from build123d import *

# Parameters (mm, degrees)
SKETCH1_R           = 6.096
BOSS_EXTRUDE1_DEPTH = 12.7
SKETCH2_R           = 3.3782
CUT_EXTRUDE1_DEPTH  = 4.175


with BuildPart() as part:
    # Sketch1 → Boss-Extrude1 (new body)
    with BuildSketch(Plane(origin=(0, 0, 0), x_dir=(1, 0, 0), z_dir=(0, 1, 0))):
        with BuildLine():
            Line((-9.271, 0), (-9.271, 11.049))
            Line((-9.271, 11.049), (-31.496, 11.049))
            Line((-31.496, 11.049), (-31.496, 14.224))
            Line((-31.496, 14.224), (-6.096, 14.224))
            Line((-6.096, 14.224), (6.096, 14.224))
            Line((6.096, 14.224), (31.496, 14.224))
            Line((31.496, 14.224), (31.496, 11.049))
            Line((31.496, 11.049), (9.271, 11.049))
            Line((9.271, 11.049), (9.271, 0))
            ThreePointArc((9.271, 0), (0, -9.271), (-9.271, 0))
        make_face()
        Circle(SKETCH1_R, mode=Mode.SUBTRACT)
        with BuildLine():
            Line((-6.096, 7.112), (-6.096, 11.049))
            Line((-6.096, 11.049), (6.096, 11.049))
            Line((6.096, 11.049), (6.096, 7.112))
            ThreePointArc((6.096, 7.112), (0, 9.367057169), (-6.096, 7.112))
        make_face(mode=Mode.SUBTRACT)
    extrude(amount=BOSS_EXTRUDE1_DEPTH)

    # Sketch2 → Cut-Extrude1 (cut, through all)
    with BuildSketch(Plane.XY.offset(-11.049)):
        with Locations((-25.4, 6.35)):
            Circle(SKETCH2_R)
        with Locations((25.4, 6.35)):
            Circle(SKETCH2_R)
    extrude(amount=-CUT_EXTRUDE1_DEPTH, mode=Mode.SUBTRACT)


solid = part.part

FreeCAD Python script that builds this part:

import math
import FreeCAD as App
import Part
import Sketcher

V = App.Vector
Q = App.Units.Quantity

doc = App.newDocument("Part")
body = doc.addObject("PartDesign::Body", "Body")

# Sketch on XZ plane
sketch1 = body.newObject("Sketcher::SketchObject", "Sketch")
sketch1.AttachmentSupport = (doc.getObject("XZ_Plane"), [""])
sketch1.MapMode = "FlatFace"
sketch1.addGeometry(Part.LineSegment(V(-9.3, -11, 0), V(-9.3, 0, 0)), False)
sketch1.addGeometry(Part.ArcOfCircle(Part.Circle(V(0, 0, 0), V(0, 0, 1), 9.3), math.radians(0), math.radians(180)), False)
sketch1.addGeometry(Part.LineSegment(V(9.3, 0, 0), V(9.3, -11, 0)), False)
sketch1.addGeometry(Part.LineSegment(V(9.3, -11, 0), V(31.5, -11, 0)), False)
sketch1.addGeometry(Part.LineSegment(V(31.5, -11, 0), V(31.5, -14.2, 0)), False)
sketch1.addGeometry(Part.LineSegment(V(31.5, -14.2, 0), V(-31.5, -14.2, 0)), False)
sketch1.addGeometry(Part.LineSegment(V(-31.5, -14.2, 0), V(-31.5, -11, 0)), False)
sketch1.addGeometry(Part.LineSegment(V(-31.5, -11, 0), V(-9.3, -11, 0)), False)
sketch1.addGeometry(Part.Circle(V(0, 0, 0), V(0, 0, 1), 6.1), False)
sketch1.addGeometry(Part.LineSegment(V(-6.1, -7.1, 0), V(-6.1, -11, 0)), False)
sketch1.addGeometry(Part.LineSegment(V(-6.1, -11, 0), V(6.1, -11, 0)), False)
sketch1.addGeometry(Part.LineSegment(V(6.1, -11, 0), V(6.1, -7.1, 0)), False)
sketch1.addGeometry(Part.ArcOfCircle(Part.Circle(V(0, 0, 0), V(0, 0, 1), 9.4), math.radians(-131), math.radians(-49)), False)
sketch1.addConstraint(Sketcher.Constraint("Tangent", 0, 2, 1, 2))
sketch1.addConstraint(Sketcher.Constraint("Tangent", 1, 1, 2, 1))
sketch1.addConstraint(Sketcher.Constraint("Coincident", 2, 2, 3, 1))
sketch1.addConstraint(Sketcher.Constraint("Coincident", 3, 2, 4, 1))
sketch1.addConstraint(Sketcher.Constraint("Coincident", 4, 2, 5, 1))
sketch1.addConstraint(Sketcher.Constraint("Coincident", 5, 2, 6, 1))
sketch1.addConstraint(Sketcher.Constraint("Coincident", 6, 2, 7, 1))
sketch1.addConstraint(Sketcher.Constraint("Coincident", 7, 2, 0, 1))
sketch1.addConstraint(Sketcher.Constraint("Coincident", 9, 2, 10, 1))
sketch1.addConstraint(Sketcher.Constraint("Coincident", 10, 2, 11, 1))
sketch1.addConstraint(Sketcher.Constraint("Coincident", 11, 2, 12, 2))
sketch1.addConstraint(Sketcher.Constraint("Coincident", 12, 1, 9, 1))
sketch1.addConstraint(Sketcher.Constraint("Vertical", 0))
sketch1.addConstraint(Sketcher.Constraint("Vertical", 2))
sketch1.addConstraint(Sketcher.Constraint("Horizontal", 3))
sketch1.addConstraint(Sketcher.Constraint("Vertical", 4))
sketch1.addConstraint(Sketcher.Constraint("Horizontal", 5))
sketch1.addConstraint(Sketcher.Constraint("Vertical", 6))
sketch1.addConstraint(Sketcher.Constraint("Horizontal", 7))
sketch1.addConstraint(Sketcher.Constraint("Vertical", 9))
sketch1.addConstraint(Sketcher.Constraint("Horizontal", 10))
sketch1.addConstraint(Sketcher.Constraint("Vertical", 11))
sketch1.addConstraint(Sketcher.Constraint("Coincident", 1, 3, -1, 1))
sketch1.addConstraint(Sketcher.Constraint("Coincident", 8, 3, -1, 1))
sketch1.addConstraint(Sketcher.Constraint("Coincident", 12, 3, -1, 1))
sketch1.addConstraint(Sketcher.Constraint("Symmetric", 3, 2, 6, 2, -2))
sketch1.addConstraint(Sketcher.Constraint("Horizontal", 7, 2, 9, 2))
sketch1.addConstraint(Sketcher.Constraint("Horizontal", 11, 2, 12, 1))
sketch1.addConstraint(Sketcher.Constraint("Diameter", 8, Q("0.48 in")))
sketch1.addConstraint(Sketcher.Constraint("Radius", 1, Q("0.365 in")))
sketch1.addConstraint(Sketcher.Constraint("DistanceX", 5, 2, 5, 1, Q("2.48 in")))
sketch1.addConstraint(Sketcher.Constraint("DistanceX", 10, 1, 10, 2, Q("0.48 in")))
sketch1.addConstraint(Sketcher.Constraint("DistanceY", 0, 1, 0, 2, Q("0.435 in")))
sketch1.addConstraint(Sketcher.Constraint("DistanceY", 4, 2, 4, 1, Q("0.125 in")))
sketch1.addConstraint(Sketcher.Constraint("DistanceY", 9, 2, 9, 1, Q("0.155 in")))
pad1 = body.newObject("PartDesign::Pad", "Pad")
pad1.Profile = sketch1
pad1.Length = Q("0.5 in")
pad1.Reversed = True

# Sketch on XY plane
sketch2 = body.newObject("Sketcher::SketchObject", "Sketch001")
sketch2.AttachmentSupport = (doc.getObject("XY_Plane"), [""])
sketch2.MapMode = "FlatFace"
sketch2.AttachmentOffset = App.Placement(V(0, 0, -0.435 * 25.4), App.Rotation())
sketch2.addGeometry(Part.Circle(V(-25.4, 6.3, 0), V(0, 0, 1), 3.4), False)
sketch2.addGeometry(Part.Circle(V(25.4, 6.3, 0), V(0, 0, 1), 3.4), False)
sketch2.addConstraint(Sketcher.Constraint("Equal", 0, 1))
sketch2.addConstraint(Sketcher.Constraint("Symmetric", 0, 3, 1, 3, -2))
sketch2.addConstraint(Sketcher.Constraint("Diameter", 0, Q("0.266 in")))
sketch2.addConstraint(Sketcher.Constraint("DistanceX", 0, 3, -1, 1, Q("1 in")))
sketch2.addConstraint(Sketcher.Constraint("DistanceY", -1, 1, 0, 3, Q("0.25 in")))
pocket1 = body.newObject("PartDesign::Pocket", "Pocket")
pocket1.Profile = sketch2
pocket1.Type = "ThroughAll"

doc.recompute()
